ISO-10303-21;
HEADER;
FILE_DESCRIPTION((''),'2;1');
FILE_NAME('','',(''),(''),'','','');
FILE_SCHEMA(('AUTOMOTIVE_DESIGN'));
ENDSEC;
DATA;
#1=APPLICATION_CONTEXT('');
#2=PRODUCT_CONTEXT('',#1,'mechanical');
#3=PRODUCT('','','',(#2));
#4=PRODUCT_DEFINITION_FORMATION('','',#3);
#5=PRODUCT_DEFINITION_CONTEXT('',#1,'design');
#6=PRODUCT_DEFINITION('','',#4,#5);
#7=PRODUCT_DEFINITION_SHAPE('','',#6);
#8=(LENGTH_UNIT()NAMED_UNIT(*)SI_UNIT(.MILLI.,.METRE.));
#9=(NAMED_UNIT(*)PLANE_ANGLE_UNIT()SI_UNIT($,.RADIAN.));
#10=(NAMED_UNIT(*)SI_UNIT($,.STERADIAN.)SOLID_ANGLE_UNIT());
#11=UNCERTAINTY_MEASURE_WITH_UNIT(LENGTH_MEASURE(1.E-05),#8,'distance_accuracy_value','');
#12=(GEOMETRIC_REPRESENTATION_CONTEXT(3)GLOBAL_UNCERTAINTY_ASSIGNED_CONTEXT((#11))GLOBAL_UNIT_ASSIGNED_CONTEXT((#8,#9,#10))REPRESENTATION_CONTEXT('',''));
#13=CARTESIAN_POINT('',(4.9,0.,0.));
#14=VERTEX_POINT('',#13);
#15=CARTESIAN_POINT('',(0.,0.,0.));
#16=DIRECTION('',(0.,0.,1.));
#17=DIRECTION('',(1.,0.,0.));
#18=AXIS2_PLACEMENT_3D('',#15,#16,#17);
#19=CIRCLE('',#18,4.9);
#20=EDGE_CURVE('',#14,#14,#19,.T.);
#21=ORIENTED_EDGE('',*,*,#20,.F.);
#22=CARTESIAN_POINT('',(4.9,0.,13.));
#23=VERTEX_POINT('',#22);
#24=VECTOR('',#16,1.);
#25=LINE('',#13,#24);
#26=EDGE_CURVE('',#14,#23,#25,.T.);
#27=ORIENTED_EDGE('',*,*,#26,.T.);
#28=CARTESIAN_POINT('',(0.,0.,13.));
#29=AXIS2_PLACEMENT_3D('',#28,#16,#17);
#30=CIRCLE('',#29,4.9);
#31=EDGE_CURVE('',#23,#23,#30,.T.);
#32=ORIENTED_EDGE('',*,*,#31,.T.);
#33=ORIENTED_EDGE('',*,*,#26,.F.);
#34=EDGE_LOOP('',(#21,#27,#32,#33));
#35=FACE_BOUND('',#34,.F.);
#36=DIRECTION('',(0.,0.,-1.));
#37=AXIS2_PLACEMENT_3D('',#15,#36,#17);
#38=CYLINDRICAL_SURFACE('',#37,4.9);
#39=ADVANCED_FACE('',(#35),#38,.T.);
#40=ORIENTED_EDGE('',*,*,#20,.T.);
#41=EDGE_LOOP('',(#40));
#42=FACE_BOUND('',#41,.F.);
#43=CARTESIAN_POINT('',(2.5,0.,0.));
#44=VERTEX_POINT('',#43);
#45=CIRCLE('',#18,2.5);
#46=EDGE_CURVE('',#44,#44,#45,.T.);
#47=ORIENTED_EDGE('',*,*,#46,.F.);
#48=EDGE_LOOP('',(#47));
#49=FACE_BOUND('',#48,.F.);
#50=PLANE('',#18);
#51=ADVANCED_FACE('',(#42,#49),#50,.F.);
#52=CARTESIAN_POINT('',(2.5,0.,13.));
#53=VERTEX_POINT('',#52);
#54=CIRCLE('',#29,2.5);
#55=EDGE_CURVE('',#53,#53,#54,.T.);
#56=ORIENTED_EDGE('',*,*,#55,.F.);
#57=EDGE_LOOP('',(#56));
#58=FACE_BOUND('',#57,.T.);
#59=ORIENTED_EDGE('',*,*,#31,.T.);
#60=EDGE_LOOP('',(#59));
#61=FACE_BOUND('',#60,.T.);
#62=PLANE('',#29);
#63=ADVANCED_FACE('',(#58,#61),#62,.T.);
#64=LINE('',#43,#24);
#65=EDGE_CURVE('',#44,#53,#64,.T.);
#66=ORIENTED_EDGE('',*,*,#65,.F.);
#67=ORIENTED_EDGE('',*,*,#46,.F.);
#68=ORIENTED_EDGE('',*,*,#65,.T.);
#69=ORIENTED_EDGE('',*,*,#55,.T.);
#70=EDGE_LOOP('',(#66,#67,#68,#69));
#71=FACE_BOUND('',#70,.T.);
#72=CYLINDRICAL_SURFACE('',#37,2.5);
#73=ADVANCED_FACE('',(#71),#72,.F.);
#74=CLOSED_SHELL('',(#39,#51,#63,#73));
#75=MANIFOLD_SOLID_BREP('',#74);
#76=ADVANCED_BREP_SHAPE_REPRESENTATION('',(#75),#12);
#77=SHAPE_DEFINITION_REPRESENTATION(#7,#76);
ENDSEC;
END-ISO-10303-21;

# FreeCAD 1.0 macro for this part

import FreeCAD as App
import Part
import Sketcher

doc = App.newDocument("Part")
body = doc.addObject("PartDesign::Body", "Body")

# Sketch on XY plane
sketch1 = body.newObject("Sketcher::SketchObject", "Sketch")
sketch1.AttachmentSupport = (doc.getObject("XY_Plane"), [""])
sketch1.MapMode = "FlatFace"
sketch1.addGeometry([
    Part.Circle(App.Vector(0, 0, 0), App.Vector(0, 0, 1), 4.9),
    Part.Circle(App.Vector(0, 0, 0), App.Vector(0, 0, 1), 2.5),
], False)
sketch1.addConstraint([
    Sketcher.Constraint("Coincident", 0, 3, -1, 1),
    Sketcher.Constraint("Coincident", 1, 3, -1, 1),
    Sketcher.Constraint("Diameter", 1, 5.0),
    Sketcher.Constraint("Diameter", 0, 9.8),
])
pad1 = body.newObject("PartDesign::Pad", "Pad")
pad1.Profile = sketch1
pad1.Length = 13

doc.recompute()
